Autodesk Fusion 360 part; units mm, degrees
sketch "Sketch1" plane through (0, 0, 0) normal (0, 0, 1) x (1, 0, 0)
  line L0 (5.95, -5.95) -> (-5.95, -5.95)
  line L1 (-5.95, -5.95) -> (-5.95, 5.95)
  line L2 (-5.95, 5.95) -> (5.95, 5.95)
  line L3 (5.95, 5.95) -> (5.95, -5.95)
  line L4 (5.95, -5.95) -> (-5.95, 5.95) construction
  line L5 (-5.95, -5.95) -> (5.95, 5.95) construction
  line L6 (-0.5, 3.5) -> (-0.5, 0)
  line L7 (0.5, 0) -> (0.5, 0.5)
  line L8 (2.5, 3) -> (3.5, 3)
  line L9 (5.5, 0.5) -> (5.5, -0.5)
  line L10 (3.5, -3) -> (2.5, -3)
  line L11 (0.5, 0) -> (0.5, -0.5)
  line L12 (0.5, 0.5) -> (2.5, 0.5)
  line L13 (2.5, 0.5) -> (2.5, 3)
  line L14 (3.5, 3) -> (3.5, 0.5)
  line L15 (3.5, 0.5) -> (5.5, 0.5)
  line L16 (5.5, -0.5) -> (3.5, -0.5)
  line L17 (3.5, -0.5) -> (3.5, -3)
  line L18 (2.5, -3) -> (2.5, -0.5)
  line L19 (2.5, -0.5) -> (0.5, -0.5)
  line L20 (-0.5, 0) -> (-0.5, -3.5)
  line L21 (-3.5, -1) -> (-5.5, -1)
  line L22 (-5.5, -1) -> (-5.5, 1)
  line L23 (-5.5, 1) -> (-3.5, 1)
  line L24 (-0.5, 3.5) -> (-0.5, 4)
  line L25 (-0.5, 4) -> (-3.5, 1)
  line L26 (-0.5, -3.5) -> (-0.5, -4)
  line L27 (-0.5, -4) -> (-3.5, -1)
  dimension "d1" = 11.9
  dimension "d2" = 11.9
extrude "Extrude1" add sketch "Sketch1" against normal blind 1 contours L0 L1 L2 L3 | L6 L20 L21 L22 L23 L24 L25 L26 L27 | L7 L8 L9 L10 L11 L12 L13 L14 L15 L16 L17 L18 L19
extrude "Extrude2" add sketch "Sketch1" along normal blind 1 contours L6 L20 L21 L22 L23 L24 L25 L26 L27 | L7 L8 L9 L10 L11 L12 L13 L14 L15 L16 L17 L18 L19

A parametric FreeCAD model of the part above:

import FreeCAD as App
import Part
import Sketcher

V = App.Vector
Q = App.Units.Quantity

doc = App.newDocument("Part")
params = doc.addObject("Spreadsheet::Sheet", "Params")
for row, (alias, value) in enumerate([
    ("sketch1_width", "11.9 mm"),
    ("pad1_length", "1 mm"),
    ("sketch2_width", "2 mm"),
    ("sketch2_width2", "1 mm"),
    ("sketch2_height", "8 mm"),
    ("sketch2_height2", "2.5 mm"),
    ("pad2_length", "1 mm"),
], start=1):
    params.set(f"A{row}", alias)
    params.set(f"B{row}", "=" + value)
    params.setAlias(f"B{row}", alias)

body = doc.addObject("PartDesign::Body", "Body")

# Sketch on XY plane
sketch1 = doc.addObject("Sketcher::SketchObject", "Sketch")
body.addObject(sketch1)
sketch1.AttachmentSupport = (doc.XY_Plane, [""])
sketch1.MapMode = "FlatFace"
sketch1.addGeometry([
    Part.LineSegment(V(-6, -6, 0), V(6, -6, 0)),
    Part.LineSegment(V(6, -6, 0), V(6, 6, 0)),
    Part.LineSegment(V(6, 6, 0), V(-6, 6, 0)),
    Part.LineSegment(V(-6, 6, 0), V(-6, -6, 0)),
], False)
sketch1.addConstraint([
    Sketcher.Constraint("Coincident", 0, 2, 1, 1),
    Sketcher.Constraint("Coincident", 1, 2, 2, 1),
    Sketcher.Constraint("Coincident", 2, 2, 3, 1),
    Sketcher.Constraint("Coincident", 3, 2, 0, 1),
    Sketcher.Constraint("Horizontal", 0),
    Sketcher.Constraint("Vertical", 1),
    Sketcher.Constraint("Horizontal", 2),
    Sketcher.Constraint("Vertical", 3),
    Sketcher.Constraint("Symmetric", 0, 2, 2, 2, -1, 1),
    Sketcher.Constraint("Equal", 2, 1),
    Sketcher.Constraint("DistanceX", 0, 1, 0, 2, Q("11.9 mm")),
])
sketch1.setExpression("Constraints[10]", "Params.sketch1_width")
pad1 = doc.addObject("PartDesign::Pad", "Pad")
body.addObject(pad1)
pad1.Profile = sketch1
pad1.setExpression("Length", "Params.pad1_length")
pad1.Reversed = True

# Sketch on XY plane
sketch2 = doc.addObject("Sketcher::SketchObject", "Sketch001")
body.addObject(sketch2)
sketch2.AttachmentSupport = (doc.XY_Plane, [""])
sketch2.MapMode = "FlatFace"
sketch2.addGeometry([
    Part.LineSegment(V(-0.5, -4, 0), V(-0.5, 4, 0)),  # 0
    Part.LineSegment(V(-0.5, 4, 0), V(-3.5, 1, 0)),  # 1
    Part.LineSegment(V(-3.5, 1, 0), V(-5.5, 1, 0)),  # 2
    Part.LineSegment(V(-5.5, 1, 0), V(-5.5, -1, 0)),  # 3
    Part.LineSegment(V(-5.5, -1, 0), V(-3.5, -1, 0)),  # 4
    Part.LineSegment(V(-3.5, -1, 0), V(-0.5, -4, 0)),  # 5
    Part.LineSegment(V(0.5, 0.5, 0), V(0.5, -0.5, 0)),  # 6
    Part.LineSegment(V(0.5, -0.5, 0), V(2.5, -0.5, 0)),  # 7
    Part.LineSegment(V(2.5, -0.5, 0), V(2.5, -3, 0)),  # 8
    Part.LineSegment(V(2.5, -3, 0), V(3.5, -3, 0)),  # 9
    Part.LineSegment(V(3.5, -3, 0), V(3.5, -0.5, 0)),  # 10
    Part.LineSegment(V(3.5, -0.5, 0), V(5.5, -0.5, 0)),  # 11
    Part.LineSegment(V(5.5, -0.5, 0), V(5.5, 0.5, 0)),  # 12
    Part.LineSegment(V(5.5, 0.5, 0), V(3.5, 0.5, 0)),  # 13
    Part.LineSegment(V(3.5, 0.5, 0), V(3.5, 3, 0)),  # 14
    Part.LineSegment(V(3.5, 3, 0), V(2.5, 3, 0)),  # 15
    Part.LineSegment(V(2.5, 3, 0), V(2.5, 0.5, 0)),  # 16
    Part.LineSegment(V(2.5, 0.5, 0), V(0.5, 0.5, 0)),  # 17
], False)
sketch2.addConstraint([
    Sketcher.Constraint("Coincident", 0, 2, 1, 1),
    Sketcher.Constraint("Coincident", 1, 2, 2, 1),
    Sketcher.Constraint("Coincident", 2, 2, 3, 1),
    Sketcher.Constraint("Coincident", 3, 2, 4, 1),
    Sketcher.Constraint("Coincident", 4, 2, 5, 1),
    Sketcher.Constraint("Coincident", 5, 2, 0, 1),
    Sketcher.Constraint("Coincident", 6, 2, 7, 1),
    Sketcher.Constraint("Coincident", 7, 2, 8, 1),
    Sketcher.Constraint("Coincident", 8, 2, 9, 1),
    Sketcher.Constraint("Coincident", 9, 2, 10, 1),
    Sketcher.Constraint("Coincident", 10, 2, 11, 1),
    Sketcher.Constraint("Coincident", 11, 2, 12, 1),
    Sketcher.Constraint("Coincident", 12, 2, 13, 1),
    Sketcher.Constraint("Coincident", 13, 2, 14, 1),
    Sketcher.Constraint("Coincident", 14, 2, 15, 1),
    Sketcher.Constraint("Coincident", 15, 2, 16, 1),
    Sketcher.Constraint("Coincident", 16, 2, 17, 1),
    Sketcher.Constraint("Coincident", 17, 2, 6, 1),
    Sketcher.Constraint("Vertical", 0),
    Sketcher.Constraint("Horizontal", 2),
    Sketcher.Constraint("Vertical", 3),
    Sketcher.Constraint("Horizontal", 4),
    Sketcher.Constraint("Vertical", 6),
    Sketcher.Constraint("Horizontal", 7),
    Sketcher.Constraint("Vertical", 8),
    Sketcher.Constraint("Horizontal", 9),
    Sketcher.Constraint("Vertical", 10),
    Sketcher.Constraint("Horizontal", 11),
    Sketcher.Constraint("Vertical", 12),
    Sketcher.Constraint("Horizontal", 13),
    Sketcher.Constraint("Vertical", 14),
    Sketcher.Constraint("Horizontal", 15),
    Sketcher.Constraint("Vertical", 16),
    Sketcher.Constraint("Horizontal", 17),
    Sketcher.Constraint("Symmetric", 1, 2, 4, 2, -1),
    Sketcher.Constraint("Symmetric", 10, 2, 13, 2, -1),
    Sketcher.Constraint("Symmetric", 8, 2, 15, 2, -1),
    Sketcher.Constraint("Perpendicular", 1, 5),
    Sketcher.Constraint("Horizontal", 7, 2, 10, 2),
    Sketcher.Constraint("Horizontal", 13, 2, 16, 2),
    Sketcher.Constraint("Equal", 4, 7),
    Sketcher.Constraint("Equal", 7, 11),
    Sketcher.Constraint("Equal", 17, 3),
    Sketcher.Constraint("Equal", 15, 6),
    Sketcher.Constraint("Equal", 1, 5),
    Sketcher.Constraint("DistanceX", 2, 2, 2, 1, Q("2 mm")),
    Sketcher.Constraint("DistanceX", 9, 1, 9, 2, Q("1 mm")),
    Sketcher.Constraint("DistanceY", 0, 1, 0, 2, Q("8 mm")),
    Sketcher.Constraint("DistanceY", 8, 2, 8, 1, Q("2.5 mm")),
    Sketcher.Constraint("DistanceX", 5, 2, 6, 2, Q("1 mm")),
    Sketcher.Constraint("DistanceX", 0, 2, -1, 1, Q("0.5 mm")),
])
sketch2.setExpression("Constraints[45]", "Params.sketch2_width")
sketch2.setExpression("Constraints[46]", "Params.sketch2_width2")
sketch2.setExpression("Constraints[47]", "Params.sketch2_height")
sketch2.setExpression("Constraints[48]", "Params.sketch2_height2")
pad2 = doc.addObject("PartDesign::Pad", "Pad001")
body.addObject(pad2)
pad2.Profile = sketch2
pad2.setExpression("Length", "Params.pad2_length")

doc.recompute()
